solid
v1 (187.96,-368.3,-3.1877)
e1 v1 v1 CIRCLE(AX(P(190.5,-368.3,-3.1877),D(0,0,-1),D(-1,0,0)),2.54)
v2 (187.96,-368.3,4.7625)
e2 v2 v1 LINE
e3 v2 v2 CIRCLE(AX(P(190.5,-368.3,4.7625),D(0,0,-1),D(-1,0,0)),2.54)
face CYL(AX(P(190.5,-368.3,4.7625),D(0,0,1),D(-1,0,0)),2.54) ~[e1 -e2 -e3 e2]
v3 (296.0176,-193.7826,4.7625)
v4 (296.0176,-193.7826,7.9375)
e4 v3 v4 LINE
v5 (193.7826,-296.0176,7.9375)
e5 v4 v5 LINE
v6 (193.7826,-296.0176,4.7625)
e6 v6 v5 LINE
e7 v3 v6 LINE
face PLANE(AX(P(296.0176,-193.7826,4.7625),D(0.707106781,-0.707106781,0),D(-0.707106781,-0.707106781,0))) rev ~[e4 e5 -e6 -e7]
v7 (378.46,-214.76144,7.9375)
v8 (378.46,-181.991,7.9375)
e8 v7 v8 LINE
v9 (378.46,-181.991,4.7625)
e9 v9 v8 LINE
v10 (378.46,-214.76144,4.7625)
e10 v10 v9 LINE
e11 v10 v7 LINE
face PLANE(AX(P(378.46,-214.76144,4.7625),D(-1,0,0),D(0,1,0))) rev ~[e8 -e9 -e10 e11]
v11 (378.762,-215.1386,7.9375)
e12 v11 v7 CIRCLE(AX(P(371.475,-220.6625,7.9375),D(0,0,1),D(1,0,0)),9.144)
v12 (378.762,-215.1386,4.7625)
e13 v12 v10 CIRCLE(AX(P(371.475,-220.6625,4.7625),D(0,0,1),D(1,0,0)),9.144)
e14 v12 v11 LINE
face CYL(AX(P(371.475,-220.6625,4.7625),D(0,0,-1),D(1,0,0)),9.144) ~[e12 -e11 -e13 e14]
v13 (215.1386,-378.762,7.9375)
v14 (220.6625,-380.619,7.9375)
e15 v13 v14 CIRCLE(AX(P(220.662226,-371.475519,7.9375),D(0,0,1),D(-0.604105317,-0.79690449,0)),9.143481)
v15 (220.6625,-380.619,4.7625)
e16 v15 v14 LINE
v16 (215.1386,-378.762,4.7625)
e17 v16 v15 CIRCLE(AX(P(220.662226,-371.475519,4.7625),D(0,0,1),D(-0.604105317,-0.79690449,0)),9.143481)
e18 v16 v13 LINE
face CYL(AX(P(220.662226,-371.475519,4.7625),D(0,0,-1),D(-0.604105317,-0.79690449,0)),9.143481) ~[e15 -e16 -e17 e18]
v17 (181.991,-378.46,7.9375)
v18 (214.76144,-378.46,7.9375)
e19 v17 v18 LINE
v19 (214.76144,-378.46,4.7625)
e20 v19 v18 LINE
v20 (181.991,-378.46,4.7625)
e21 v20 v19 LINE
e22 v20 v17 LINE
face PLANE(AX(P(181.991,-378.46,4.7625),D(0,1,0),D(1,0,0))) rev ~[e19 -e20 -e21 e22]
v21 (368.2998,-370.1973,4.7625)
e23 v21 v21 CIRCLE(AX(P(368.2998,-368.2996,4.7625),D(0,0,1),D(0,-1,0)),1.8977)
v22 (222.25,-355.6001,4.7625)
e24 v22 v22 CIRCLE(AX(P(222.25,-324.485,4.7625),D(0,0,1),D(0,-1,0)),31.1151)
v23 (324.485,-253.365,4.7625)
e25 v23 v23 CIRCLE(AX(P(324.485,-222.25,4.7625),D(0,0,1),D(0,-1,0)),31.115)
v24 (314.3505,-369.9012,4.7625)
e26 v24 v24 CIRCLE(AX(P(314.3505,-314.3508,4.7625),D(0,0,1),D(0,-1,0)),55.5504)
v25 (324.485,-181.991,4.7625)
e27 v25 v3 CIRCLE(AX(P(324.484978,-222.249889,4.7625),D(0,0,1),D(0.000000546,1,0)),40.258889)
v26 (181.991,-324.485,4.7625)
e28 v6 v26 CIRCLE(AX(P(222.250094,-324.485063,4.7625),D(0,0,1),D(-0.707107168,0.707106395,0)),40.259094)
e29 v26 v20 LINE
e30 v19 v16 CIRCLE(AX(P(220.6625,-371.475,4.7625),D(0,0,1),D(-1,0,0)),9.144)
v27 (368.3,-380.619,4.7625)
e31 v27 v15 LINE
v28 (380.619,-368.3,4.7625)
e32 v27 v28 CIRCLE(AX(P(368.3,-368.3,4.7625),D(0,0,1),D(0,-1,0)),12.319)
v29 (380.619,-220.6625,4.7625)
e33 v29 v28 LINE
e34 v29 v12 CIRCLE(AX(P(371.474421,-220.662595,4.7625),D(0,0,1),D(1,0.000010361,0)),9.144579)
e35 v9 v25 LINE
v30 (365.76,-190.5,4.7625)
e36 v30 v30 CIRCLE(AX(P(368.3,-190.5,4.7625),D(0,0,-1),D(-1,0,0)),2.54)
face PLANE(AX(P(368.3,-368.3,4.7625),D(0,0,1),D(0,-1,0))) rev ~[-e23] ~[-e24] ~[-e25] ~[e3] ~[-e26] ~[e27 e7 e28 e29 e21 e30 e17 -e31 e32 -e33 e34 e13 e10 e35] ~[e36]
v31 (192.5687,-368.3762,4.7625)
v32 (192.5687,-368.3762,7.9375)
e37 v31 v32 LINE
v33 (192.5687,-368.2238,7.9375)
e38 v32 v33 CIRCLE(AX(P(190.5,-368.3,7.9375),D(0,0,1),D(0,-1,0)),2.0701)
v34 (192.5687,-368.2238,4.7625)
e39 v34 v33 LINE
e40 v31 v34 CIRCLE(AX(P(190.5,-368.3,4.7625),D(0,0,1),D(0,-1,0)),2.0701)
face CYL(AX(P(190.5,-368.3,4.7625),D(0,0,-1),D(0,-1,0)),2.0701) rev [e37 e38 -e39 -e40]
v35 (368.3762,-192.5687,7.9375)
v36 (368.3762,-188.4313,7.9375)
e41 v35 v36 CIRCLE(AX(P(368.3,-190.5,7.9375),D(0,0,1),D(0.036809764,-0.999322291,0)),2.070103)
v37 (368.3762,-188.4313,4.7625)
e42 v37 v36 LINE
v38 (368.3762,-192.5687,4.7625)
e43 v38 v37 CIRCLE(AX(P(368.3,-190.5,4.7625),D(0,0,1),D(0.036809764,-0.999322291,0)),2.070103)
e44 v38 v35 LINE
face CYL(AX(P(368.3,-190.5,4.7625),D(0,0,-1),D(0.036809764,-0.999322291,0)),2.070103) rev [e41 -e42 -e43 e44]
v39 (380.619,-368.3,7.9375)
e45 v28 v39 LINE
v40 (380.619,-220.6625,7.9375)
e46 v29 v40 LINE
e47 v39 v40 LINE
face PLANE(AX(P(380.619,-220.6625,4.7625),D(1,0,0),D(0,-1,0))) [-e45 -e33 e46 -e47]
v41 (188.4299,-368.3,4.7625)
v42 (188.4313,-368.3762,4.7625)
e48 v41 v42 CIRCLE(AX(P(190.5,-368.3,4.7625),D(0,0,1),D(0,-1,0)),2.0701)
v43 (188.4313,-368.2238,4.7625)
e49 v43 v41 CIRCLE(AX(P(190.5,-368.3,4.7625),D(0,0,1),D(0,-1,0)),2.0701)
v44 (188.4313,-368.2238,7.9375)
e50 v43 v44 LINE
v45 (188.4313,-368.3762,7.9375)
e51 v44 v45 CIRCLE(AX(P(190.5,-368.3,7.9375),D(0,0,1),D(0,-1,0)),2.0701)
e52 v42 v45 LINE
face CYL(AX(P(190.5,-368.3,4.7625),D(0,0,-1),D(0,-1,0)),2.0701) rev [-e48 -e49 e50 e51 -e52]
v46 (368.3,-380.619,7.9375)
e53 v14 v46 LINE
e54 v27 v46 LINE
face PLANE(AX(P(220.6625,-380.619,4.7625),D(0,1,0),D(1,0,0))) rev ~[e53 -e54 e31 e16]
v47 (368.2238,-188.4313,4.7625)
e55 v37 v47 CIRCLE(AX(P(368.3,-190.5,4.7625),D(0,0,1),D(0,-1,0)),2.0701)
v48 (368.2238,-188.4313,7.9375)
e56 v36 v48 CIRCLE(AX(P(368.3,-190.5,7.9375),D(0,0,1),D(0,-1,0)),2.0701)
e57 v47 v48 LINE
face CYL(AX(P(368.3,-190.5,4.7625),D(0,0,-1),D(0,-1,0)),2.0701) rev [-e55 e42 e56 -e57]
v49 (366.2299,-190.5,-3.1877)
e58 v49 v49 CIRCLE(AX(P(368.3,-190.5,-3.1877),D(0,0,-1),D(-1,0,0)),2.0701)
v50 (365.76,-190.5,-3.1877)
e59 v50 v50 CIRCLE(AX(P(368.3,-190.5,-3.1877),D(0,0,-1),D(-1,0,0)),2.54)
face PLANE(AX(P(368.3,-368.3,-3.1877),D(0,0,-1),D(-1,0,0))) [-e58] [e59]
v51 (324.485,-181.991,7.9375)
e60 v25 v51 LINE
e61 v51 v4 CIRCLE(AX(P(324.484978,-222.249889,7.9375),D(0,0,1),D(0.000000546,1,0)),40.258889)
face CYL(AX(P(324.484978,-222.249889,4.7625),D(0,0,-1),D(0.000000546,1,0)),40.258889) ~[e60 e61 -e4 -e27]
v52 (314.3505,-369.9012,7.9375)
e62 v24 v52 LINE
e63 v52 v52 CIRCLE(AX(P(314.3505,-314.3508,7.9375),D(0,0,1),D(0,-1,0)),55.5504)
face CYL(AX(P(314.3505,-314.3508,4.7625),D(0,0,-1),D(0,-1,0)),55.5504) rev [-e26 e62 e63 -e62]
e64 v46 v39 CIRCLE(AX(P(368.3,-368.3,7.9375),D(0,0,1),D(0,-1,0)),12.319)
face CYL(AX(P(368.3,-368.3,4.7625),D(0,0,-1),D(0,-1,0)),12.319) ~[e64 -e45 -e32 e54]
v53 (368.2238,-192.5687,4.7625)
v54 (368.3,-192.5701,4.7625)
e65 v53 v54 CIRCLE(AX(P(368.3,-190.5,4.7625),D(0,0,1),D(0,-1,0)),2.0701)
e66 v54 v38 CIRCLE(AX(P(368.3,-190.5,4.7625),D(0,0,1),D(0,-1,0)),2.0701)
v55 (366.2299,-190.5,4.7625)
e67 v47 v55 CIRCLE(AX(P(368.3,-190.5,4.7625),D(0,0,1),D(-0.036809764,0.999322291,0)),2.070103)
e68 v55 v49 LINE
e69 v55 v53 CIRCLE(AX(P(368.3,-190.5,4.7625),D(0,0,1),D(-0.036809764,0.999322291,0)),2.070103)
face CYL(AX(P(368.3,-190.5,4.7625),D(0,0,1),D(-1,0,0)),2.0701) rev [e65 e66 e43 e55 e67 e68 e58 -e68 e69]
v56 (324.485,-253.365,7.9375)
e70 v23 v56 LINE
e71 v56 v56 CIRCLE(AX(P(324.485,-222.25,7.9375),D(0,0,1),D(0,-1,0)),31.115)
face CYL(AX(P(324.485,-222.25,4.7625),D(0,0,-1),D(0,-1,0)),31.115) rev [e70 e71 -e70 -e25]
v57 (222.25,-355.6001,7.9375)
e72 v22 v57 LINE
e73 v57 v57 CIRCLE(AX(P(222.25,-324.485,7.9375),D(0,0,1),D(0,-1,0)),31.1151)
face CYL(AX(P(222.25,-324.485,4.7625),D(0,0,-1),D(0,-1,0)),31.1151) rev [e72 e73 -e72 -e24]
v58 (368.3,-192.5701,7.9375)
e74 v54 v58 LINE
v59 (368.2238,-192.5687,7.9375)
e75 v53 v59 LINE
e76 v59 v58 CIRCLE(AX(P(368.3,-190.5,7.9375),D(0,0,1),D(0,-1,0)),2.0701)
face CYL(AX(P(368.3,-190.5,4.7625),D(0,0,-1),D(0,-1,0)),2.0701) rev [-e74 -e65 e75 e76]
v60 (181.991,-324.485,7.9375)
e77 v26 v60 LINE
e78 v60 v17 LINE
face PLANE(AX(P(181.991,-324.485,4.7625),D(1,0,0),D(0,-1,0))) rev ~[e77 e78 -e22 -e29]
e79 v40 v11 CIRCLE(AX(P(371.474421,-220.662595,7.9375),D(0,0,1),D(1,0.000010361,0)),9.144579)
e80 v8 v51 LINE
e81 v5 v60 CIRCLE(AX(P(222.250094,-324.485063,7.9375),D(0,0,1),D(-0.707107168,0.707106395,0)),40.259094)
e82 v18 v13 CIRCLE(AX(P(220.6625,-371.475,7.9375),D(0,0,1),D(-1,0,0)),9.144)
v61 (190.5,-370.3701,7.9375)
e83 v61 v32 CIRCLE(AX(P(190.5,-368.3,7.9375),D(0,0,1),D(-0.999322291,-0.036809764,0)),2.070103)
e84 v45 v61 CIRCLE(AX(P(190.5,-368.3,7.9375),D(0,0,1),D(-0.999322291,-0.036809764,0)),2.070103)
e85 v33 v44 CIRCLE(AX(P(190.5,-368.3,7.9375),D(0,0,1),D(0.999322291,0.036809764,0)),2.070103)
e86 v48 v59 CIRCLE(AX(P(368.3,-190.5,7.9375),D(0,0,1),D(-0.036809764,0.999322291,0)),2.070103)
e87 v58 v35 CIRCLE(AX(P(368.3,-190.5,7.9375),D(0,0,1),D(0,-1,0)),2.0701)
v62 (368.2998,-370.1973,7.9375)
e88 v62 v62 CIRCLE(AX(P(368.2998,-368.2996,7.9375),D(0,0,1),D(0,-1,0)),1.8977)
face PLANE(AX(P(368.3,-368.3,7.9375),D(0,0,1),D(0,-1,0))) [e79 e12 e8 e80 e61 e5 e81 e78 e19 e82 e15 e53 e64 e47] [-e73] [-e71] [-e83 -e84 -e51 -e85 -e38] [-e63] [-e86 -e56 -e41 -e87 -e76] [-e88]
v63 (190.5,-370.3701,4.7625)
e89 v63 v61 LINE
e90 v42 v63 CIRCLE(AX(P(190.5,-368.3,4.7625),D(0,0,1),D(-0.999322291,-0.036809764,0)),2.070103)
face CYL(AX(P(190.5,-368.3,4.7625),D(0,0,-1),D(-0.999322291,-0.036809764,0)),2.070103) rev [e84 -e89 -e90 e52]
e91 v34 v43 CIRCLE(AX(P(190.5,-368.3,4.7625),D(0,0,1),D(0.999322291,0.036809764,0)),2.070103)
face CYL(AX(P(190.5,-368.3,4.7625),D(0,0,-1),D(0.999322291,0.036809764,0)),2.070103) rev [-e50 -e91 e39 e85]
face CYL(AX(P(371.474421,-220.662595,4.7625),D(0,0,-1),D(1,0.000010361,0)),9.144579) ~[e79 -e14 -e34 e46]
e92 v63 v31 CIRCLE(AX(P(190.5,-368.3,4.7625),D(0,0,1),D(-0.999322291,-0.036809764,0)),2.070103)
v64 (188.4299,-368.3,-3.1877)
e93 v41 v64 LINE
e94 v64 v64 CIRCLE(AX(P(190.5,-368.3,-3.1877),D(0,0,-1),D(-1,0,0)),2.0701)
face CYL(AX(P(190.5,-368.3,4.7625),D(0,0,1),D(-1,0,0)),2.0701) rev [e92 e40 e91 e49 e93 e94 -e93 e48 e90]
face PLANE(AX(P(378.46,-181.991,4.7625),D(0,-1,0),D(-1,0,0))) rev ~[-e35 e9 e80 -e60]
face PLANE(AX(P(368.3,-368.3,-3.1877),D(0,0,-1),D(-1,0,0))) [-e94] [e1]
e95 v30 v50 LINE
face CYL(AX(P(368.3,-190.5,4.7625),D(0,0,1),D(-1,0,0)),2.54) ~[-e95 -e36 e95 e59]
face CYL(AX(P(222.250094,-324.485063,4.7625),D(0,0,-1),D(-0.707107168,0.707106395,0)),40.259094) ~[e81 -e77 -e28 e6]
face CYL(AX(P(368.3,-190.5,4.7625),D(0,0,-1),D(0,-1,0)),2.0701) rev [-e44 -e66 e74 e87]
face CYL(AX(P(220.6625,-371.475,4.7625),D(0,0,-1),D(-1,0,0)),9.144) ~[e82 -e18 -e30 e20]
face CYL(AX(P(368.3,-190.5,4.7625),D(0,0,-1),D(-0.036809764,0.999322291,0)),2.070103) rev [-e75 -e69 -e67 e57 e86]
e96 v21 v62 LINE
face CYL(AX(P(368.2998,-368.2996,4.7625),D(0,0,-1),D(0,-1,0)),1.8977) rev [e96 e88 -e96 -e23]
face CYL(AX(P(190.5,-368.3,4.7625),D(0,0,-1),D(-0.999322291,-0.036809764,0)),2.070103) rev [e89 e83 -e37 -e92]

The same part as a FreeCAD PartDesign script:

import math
import FreeCAD as App
import Part
import Sketcher

V = App.Vector
Q = App.Units.Quantity

doc = App.newDocument("Part")
body = doc.addObject("PartDesign::Body", "Body")

sketch1 = doc.addObject("Sketcher::SketchObject", "Sketch")
body.addObject(sketch1)
sketch1.AttachmentSupport = (doc.XY_Plane, [""])
sketch1.MapMode = "FlatFace"
sketch1.AttachmentOffset = App.Placement(V(0, 0, 0.1875 * 25.4), App.Rotation())
sketch1.addGeometry(Part.LineSegment(V(296.02, -193.78, 0), V(193.78, -296.02, 0)), False)
sketch1.addGeometry(Part.ArcOfCircle(Part.Circle(V(222.25, -324.49, 0), V(0, 0, 1), 40.26), math.radians(135), math.radians(180)), False)
sketch1.addGeometry(Part.LineSegment(V(181.99, -324.49, 0), V(181.99, -378.46, 0)), False)
sketch1.addGeometry(Part.LineSegment(V(181.99, -378.46, 0), V(214.76, -378.46, 0)), False)
sketch1.addGeometry(Part.ArcOfCircle(Part.Circle(V(220.66, -371.48, 0), V(0, 0, 1), 9.14), math.radians(-130.19), math.radians(-127.16)), False)
sketch1.addGeometry(Part.ArcOfCircle(Part.Circle(V(220.66, -371.48, 0), V(0, 0, 1), 9.14), math.radians(-127), math.radians(-90)), False)
sketch1.addGeometry(Part.LineSegment(V(220.66, -380.62, 0), V(368.3, -380.62, 0)), False)
sketch1.addGeometry(Part.ArcOfCircle(Part.Circle(V(368.3, -368.3, 0), V(0, 0, 1), 12.32), math.radians(-90), math.radians(0)), False)
sketch1.addGeometry(Part.LineSegment(V(380.62, -368.3, 0), V(380.62, -220.66, 0)), False)
sketch1.addGeometry(Part.ArcOfCircle(Part.Circle(V(371.48, -220.66, 0), V(0, 0, 1), 9.14), math.radians(0), math.radians(37)), False)
sketch1.addGeometry(Part.ArcOfCircle(Part.Circle(V(371.48, -220.66, 0), V(0, 0, 1), 9.14), math.radians(37.16), math.radians(40.19)), False)
sketch1.addGeometry(Part.LineSegment(V(378.46, -214.76, 0), V(378.46, -181.99, 0)), False)
sketch1.addGeometry(Part.LineSegment(V(378.46, -181.99, 0), V(324.49, -181.99, 0)), False)
sketch1.addGeometry(Part.ArcOfCircle(Part.Circle(V(324.49, -222.25, 0), V(0, 0, 1), 40.26), math.radians(90), math.radians(135)), False)
sketch1.addGeometry(Part.Circle(V(222.25, -324.49, 0), V(0, 0, 1), 31.12), False)
sketch1.addGeometry(Part.Circle(V(190.5, -368.3, 0), V(0, 0, 1), 2.07), False)
sketch1.addGeometry(Part.Circle(V(324.49, -222.25, 0), V(0, 0, 1), 31.11), False)
sketch1.addGeometry(Part.Circle(V(368.3, -190.5, 0), V(0, 0, 1), 2.07), False)
sketch1.addGeometry(Part.Circle(V(314.35, -314.35, 0), V(0, 0, 1), 55.55), False)
sketch1.addGeometry(Part.Circle(V(368.3, -368.3, 0), V(0, 0, 1), 1.9), False)
sketch1.addConstraint(Sketcher.Constraint("Tangent", 0, 2, 1, 1))
sketch1.addConstraint(Sketcher.Constraint("Tangent", 1, 2, 2, 1))
sketch1.addConstraint(Sketcher.Constraint("Coincident", 2, 2, 3, 1))
sketch1.addConstraint(Sketcher.Constraint("Coincident", 3, 2, 4, 1))
sketch1.addConstraint(Sketcher.Constraint("Tangent", 4, 2, 5, 1))
sketch1.addConstraint(Sketcher.Constraint("Tangent", 5, 2, 6, 1))
sketch1.addConstraint(Sketcher.Constraint("Tangent", 6, 2, 7, 1))
sketch1.addConstraint(Sketcher.Constraint("Tangent", 7, 2, 8, 1))
sketch1.addConstraint(Sketcher.Constraint("Tangent", 8, 2, 9, 1))
sketch1.addConstraint(Sketcher.Constraint("Tangent", 9, 2, 10, 1))
sketch1.addConstraint(Sketcher.Constraint("Coincident", 10, 2, 11, 1))
sketch1.addConstraint(Sketcher.Constraint("Coincident", 11, 2, 12, 1))
sketch1.addConstraint(Sketcher.Constraint("Tangent", 12, 2, 13, 1))
sketch1.addConstraint(Sketcher.Constraint("Tangent", 13, 2, 0, 1))
sketch1.addConstraint(Sketcher.Constraint("Vertical", 2))
sketch1.addConstraint(Sketcher.Constraint("Horizontal", 3))
sketch1.addConstraint(Sketcher.Constraint("Horizontal", 6))
sketch1.addConstraint(Sketcher.Constraint("Vertical", 8))
sketch1.addConstraint(Sketcher.Constraint("Vertical", 11))
sketch1.addConstraint(Sketcher.Constraint("Horizontal", 12))
sketch1.addConstraint(Sketcher.Constraint("Coincident", 14, 3, 1, 3))
sketch1.addConstraint(Sketcher.Constraint("Coincident", 16, 3, 13, 3))
sketch1.addConstraint(Sketcher.Constraint("Equal", 4, 5))
sketch1.addConstraint(Sketcher.Constraint("Equal", 5, 9))
sketch1.addConstraint(Sketcher.Constraint("Equal", 9, 10))
sketch1.addConstraint(Sketcher.Constraint("Equal", 1, 13))
sketch1.addConstraint(Sketcher.Constraint("Equal", 14, 16))
sketch1.addConstraint(Sketcher.Constraint("Equal", 15, 17))
sketch1.addConstraint(Sketcher.Constraint("Horizontal", 7, 3, 15, 3))
sketch1.addConstraint(Sketcher.Constraint("Vertical", 7, 3, 17, 3))
sketch1.addConstraint(Sketcher.Constraint("Equal", 12, 2))
sketch1.addConstraint(Sketcher.Constraint("Equal", 6, 8))
sketch1.addConstraint(Sketcher.Constraint("Equal", 3, 11))
sketch1.addConstraint(Sketcher.Constraint("Diameter", 14, Q("2.45 in")))
sketch1.addConstraint(Sketcher.Constraint("Radius", 4, Q("0.36 in")))
sketch1.addConstraint(Sketcher.Constraint("Diameter", 15, Q("0.163 in")))
sketch1.addConstraint(Sketcher.Constraint("Angle", 0, Q("-135 deg")))
sketch1.addConstraint(Sketcher.Constraint("Radius", 1, Q("1.585 in")))
sketch1.addConstraint(Sketcher.Constraint("Radius", 7, Q("0.485 in")))
sketch1.addConstraint(Sketcher.Constraint("DistanceX", 15, 3, 7, 3, Q("7 in")))
sketch1.addConstraint(Sketcher.Constraint("DistanceY", 7, 3, 17, 3, Q("7 in")))
sketch1.addConstraint(Sketcher.Constraint("DistanceX", 19, 3, 7, 3, Q("0 in")))
sketch1.addConstraint(Sketcher.Constraint("DistanceX", -1, 1, 7, 3, Q("14.5 in")))
sketch1.addConstraint(Sketcher.Constraint("DistanceY", 7, 3, -1, 1, Q("14.5 in")))
sketch1.addConstraint(Sketcher.Constraint("DistanceY", 2, 2, -1, 1, Q("14.9 in")))
sketch1.addConstraint(Sketcher.Constraint("Diameter", 18, 111.1008))
sketch1.addConstraint(Sketcher.Constraint("Diameter", 19, 3.7954))
sketch1.addConstraint(Sketcher.Constraint("DistanceX", 6, 1, 6, 2, Q("5.8125 in")))
sketch1.addConstraint(Sketcher.Constraint("DistanceX", 12, 2, 12, 1, Q("2.125 in")))
sketch1.addConstraint(Sketcher.Constraint("DistanceX", -1, 1, 1, 3, Q("8.75 in")))
sketch1.addConstraint(Sketcher.Constraint("DistanceX", -1, 1, 18, 3, Q("12.376 in")))
sketch1.addConstraint(Sketcher.Constraint("DistanceY", 18, 3, -1, 1, 314.3508))
sketch1.addConstraint(Sketcher.Constraint("DistanceY", 19, 3, -1, 1, 368.2996))
sketch1.addConstraint(Sketcher.Constraint("DistanceX", -1, 1, 4, 2, 215.1386))
sketch1.addConstraint(Sketcher.Constraint("DistanceX", -1, 1, 9, 2, Q("14.9118898 in")))
pad1 = doc.addObject("PartDesign::Pad", "Pad")
body.addObject(pad1)
pad1.Profile = sketch1
pad1.Length = Q("0.125 in")

sketch2 = doc.addObject("Sketcher::SketchObject", "Sketch001")
body.addObject(sketch2)
sketch2.AttachmentSupport = (doc.XY_Plane, [""])
sketch2.MapMode = "FlatFace"
sketch2.AttachmentOffset = App.Placement(V(0, 0, 0.1875 * 25.4), App.Rotation())
sketch2.addGeometry(Part.Circle(V(190.5, -368.3, 0), V(0, 0, 1), 2.5), False)
sketch2.addGeometry(Part.Circle(V(190.5, -368.3, 0), V(0, 0, 1), 2.1), False)
sketch2.addGeometry(Part.Circle(V(368.3, -190.5, 0), V(0, 0, 1), 2.5), False)
sketch2.addGeometry(Part.Circle(V(368.3, -190.5, 0), V(0, 0, 1), 2.1), False)
sketch2.addConstraint(Sketcher.Constraint("Coincident", 1, 3, 0, 3))
sketch2.addConstraint(Sketcher.Constraint("Coincident", 3, 3, 2, 3))
sketch2.addConstraint(Sketcher.Constraint("Equal", 0, 2))
sketch2.addConstraint(Sketcher.Constraint("Equal", 1, 3))
sketch2.addConstraint(Sketcher.Constraint("Diameter", 0, Q("0.2 in")))
sketch2.addConstraint(Sketcher.Constraint("Diameter", 1, Q("0.163 in")))
sketch2.addConstraint(Sketcher.Constraint("DistanceX", 0, 3, 2, 3, Q("7 in")))
sketch2.addConstraint(Sketcher.Constraint("DistanceY", 0, 3, 2, 3, Q("7 in")))
sketch2.addConstraint(Sketcher.Constraint("DistanceX", -1, 1, 0, 3, Q("7.5 in")))
sketch2.addConstraint(Sketcher.Constraint("DistanceY", 0, 3, -1, 1, Q("14.5 in")))
pad2 = doc.addObject("PartDesign::Pad", "Pad001")
body.addObject(pad2)
pad2.Profile = sketch2
pad2.Length = Q("0.313 in")
pad2.Reversed = True

doc.recompute()
